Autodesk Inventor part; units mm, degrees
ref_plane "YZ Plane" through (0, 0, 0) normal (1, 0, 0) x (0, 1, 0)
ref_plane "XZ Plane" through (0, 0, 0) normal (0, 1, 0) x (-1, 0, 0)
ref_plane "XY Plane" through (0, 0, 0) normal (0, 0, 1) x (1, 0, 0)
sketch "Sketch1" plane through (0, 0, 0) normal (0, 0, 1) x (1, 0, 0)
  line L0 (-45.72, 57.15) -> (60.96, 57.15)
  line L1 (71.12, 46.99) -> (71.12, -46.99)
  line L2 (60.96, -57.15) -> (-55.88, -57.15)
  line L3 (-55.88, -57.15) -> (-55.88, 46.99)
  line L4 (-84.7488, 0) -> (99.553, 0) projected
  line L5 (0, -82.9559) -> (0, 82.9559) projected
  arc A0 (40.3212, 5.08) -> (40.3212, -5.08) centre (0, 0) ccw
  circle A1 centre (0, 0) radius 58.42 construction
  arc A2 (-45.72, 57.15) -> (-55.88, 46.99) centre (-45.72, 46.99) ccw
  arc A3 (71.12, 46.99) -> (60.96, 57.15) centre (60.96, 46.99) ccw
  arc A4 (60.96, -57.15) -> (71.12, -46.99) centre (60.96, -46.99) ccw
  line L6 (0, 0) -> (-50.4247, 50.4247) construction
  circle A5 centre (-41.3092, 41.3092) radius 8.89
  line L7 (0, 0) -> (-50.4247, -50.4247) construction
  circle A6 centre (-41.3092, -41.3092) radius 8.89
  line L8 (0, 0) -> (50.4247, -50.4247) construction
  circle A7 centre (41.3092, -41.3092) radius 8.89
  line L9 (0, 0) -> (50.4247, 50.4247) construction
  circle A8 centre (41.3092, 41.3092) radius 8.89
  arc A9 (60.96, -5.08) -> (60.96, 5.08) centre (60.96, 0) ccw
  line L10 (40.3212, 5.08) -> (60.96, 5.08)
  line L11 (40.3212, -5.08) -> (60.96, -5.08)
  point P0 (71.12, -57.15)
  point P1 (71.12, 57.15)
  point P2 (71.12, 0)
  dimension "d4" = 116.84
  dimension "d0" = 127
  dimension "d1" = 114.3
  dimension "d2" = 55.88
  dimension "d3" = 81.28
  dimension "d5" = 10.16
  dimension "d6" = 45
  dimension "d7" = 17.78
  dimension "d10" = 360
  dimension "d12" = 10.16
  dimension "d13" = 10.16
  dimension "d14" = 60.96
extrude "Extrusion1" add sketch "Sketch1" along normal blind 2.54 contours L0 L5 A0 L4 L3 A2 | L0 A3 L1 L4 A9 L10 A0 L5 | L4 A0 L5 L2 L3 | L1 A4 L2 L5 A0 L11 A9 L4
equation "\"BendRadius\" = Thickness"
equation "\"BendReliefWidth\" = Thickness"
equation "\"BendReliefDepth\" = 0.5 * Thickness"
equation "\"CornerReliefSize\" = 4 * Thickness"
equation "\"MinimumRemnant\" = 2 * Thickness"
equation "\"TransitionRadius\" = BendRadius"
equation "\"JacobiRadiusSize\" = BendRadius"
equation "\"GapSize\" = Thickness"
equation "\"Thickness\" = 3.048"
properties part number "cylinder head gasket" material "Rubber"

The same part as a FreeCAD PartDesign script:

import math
import FreeCAD as App
import Part
import Sketcher
Q = App.Units.Quantity

doc = App.newDocument("Part")
body = doc.addObject("PartDesign::Body", "Body")

sketch1 = doc.addObject("Sketcher::SketchObject", "Sketch")
body.addObject(sketch1)
sketch1.AttachmentSupport = (doc.XY_Plane, [""])
sketch1.MapMode = "FlatFace"
sketch1.addGeometry(Part.ArcOfCircle(Part.Circle(App.Vector(-46, 47, 0), App.Vector(0, 0, 1), 10), math.radians(90), math.radians(180)), False)
sketch1.addGeometry(Part.LineSegment(App.Vector(-56, 47, 0), App.Vector(-56, -57, 0)), False)
sketch1.addGeometry(Part.LineSegment(App.Vector(-56, -57, 0), App.Vector(61, -57, 0)), False)
sketch1.addGeometry(Part.ArcOfCircle(Part.Circle(App.Vector(61, -47, 0), App.Vector(0, 0, 1), 10), math.radians(-90), math.radians(0)), False)
sketch1.addGeometry(Part.LineSegment(App.Vector(71, -47, 0), App.Vector(71, 47, 0)), False)
sketch1.addGeometry(Part.ArcOfCircle(Part.Circle(App.Vector(61, 47, 0), App.Vector(0, 0, 1), 10), math.radians(0), math.radians(90)), False)
sketch1.addGeometry(Part.LineSegment(App.Vector(61, 57, 0), App.Vector(-46, 57, 0)), False)
sketch1.addGeometry(Part.LineSegment(App.Vector(40, 5, 0), App.Vector(61, 5, 0)), False)
sketch1.addGeometry(Part.ArcOfCircle(Part.Circle(App.Vector(61, 0, 0), App.Vector(0, 0, 1), 5), math.radians(-90), math.radians(90)), False)
sketch1.addGeometry(Part.LineSegment(App.Vector(61, -5, 0), App.Vector(40, -5, 0)), False)
sketch1.addGeometry(Part.ArcOfCircle(Part.Circle(App.Vector(0, 0, 0), App.Vector(0, 0, 1), 41), math.radians(7), math.radians(353)), False)
sketch1.addGeometry(Part.Circle(App.Vector(-41, 41, 0), App.Vector(0, 0, 1), 9), False)
sketch1.addGeometry(Part.Circle(App.Vector(41, 41, 0), App.Vector(0, 0, 1), 9), False)
sketch1.addGeometry(Part.Circle(App.Vector(-41, -41, 0), App.Vector(0, 0, 1), 9), False)
sketch1.addGeometry(Part.Circle(App.Vector(41, -41, 0), App.Vector(0, 0, 1), 9), False)
sketch1.addConstraint(Sketcher.Constraint("Tangent", 0, 2, 1, 1))
sketch1.addConstraint(Sketcher.Constraint("Coincident", 1, 2, 2, 1))
sketch1.addConstraint(Sketcher.Constraint("Tangent", 2, 2, 3, 1))
sketch1.addConstraint(Sketcher.Constraint("Tangent", 3, 2, 4, 1))
sketch1.addConstraint(Sketcher.Constraint("Tangent", 4, 2, 5, 1))
sketch1.addConstraint(Sketcher.Constraint("Tangent", 5, 2, 6, 1))
sketch1.addConstraint(Sketcher.Constraint("Tangent", 6, 2, 0, 1))
sketch1.addConstraint(Sketcher.Constraint("Tangent", 7, 2, 8, 2))
sketch1.addConstraint(Sketcher.Constraint("Tangent", 8, 1, 9, 1))
sketch1.addConstraint(Sketcher.Constraint("Coincident", 9, 2, 10, 2))
sketch1.addConstraint(Sketcher.Constraint("Coincident", 10, 1, 7, 1))
sketch1.addConstraint(Sketcher.Constraint("Vertical", 1))
sketch1.addConstraint(Sketcher.Constraint("Horizontal", 2))
sketch1.addConstraint(Sketcher.Constraint("Vertical", 4))
sketch1.addConstraint(Sketcher.Constraint("Horizontal", 6))
sketch1.addConstraint(Sketcher.Constraint("Horizontal", 7))
sketch1.addConstraint(Sketcher.Constraint("Horizontal", 9))
sketch1.addConstraint(Sketcher.Constraint("Coincident", 10, 3, -1, 1))
sketch1.addConstraint(Sketcher.Constraint("Equal", 0, 3))
sketch1.addConstraint(Sketcher.Constraint("Equal", 3, 5))
sketch1.addConstraint(Sketcher.Constraint("Equal", 11, 12))
sketch1.addConstraint(Sketcher.Constraint("Equal", 12, 13))
sketch1.addConstraint(Sketcher.Constraint("Equal", 13, 14))
sketch1.addConstraint(Sketcher.Constraint("Symmetric", 12, 3, 13, 3, -1, 1))
sketch1.addConstraint(Sketcher.Constraint("Symmetric", 11, 3, 14, 3, -1, 1))
sketch1.addConstraint(Sketcher.Constraint("Symmetric", 11, 3, 12, 3, -2))
sketch1.addConstraint(Sketcher.Constraint("PointOnObject", 8, 3, -1))
sketch1.addConstraint(Sketcher.Constraint("Vertical", 5, 3, 8, 3))
sketch1.addConstraint(Sketcher.Constraint("Diameter", 11, Q("0.7 in")))
sketch1.addConstraint(Sketcher.Constraint("Radius", 0, Q("0.4 in")))
sketch1.addConstraint(Sketcher.Constraint("Radius", 8, Q("0.2 in")))
sketch1.addConstraint(Sketcher.Constraint("Radius", 10, Q("1.6 in")))
sketch1.addConstraint(Sketcher.Constraint("DistanceX", 2, 1, 2, 2, Q("4.6 in")))
sketch1.addConstraint(Sketcher.Constraint("DistanceX", -1, 1, 3, 3, Q("2.4 in")))
sketch1.addConstraint(Sketcher.Constraint("DistanceY", 1, 2, 1, 1, Q("4.1 in")))
sketch1.addConstraint(Sketcher.Constraint("DistanceY", -1, 1, 0, 3, Q("1.85 in")))
sketch1.addConstraint(Sketcher.Constraint("DistanceX", 11, 3, 12, 3, Q("3.2527 in")))
sketch1.addConstraint(Sketcher.Constraint("DistanceY", 13, 3, 11, 3, Q("3.2527 in")))
pad1 = doc.addObject("PartDesign::Pad", "Pad")
body.addObject(pad1)
pad1.Profile = sketch1
pad1.Length = Q("0.1 in")

doc.recompute()
